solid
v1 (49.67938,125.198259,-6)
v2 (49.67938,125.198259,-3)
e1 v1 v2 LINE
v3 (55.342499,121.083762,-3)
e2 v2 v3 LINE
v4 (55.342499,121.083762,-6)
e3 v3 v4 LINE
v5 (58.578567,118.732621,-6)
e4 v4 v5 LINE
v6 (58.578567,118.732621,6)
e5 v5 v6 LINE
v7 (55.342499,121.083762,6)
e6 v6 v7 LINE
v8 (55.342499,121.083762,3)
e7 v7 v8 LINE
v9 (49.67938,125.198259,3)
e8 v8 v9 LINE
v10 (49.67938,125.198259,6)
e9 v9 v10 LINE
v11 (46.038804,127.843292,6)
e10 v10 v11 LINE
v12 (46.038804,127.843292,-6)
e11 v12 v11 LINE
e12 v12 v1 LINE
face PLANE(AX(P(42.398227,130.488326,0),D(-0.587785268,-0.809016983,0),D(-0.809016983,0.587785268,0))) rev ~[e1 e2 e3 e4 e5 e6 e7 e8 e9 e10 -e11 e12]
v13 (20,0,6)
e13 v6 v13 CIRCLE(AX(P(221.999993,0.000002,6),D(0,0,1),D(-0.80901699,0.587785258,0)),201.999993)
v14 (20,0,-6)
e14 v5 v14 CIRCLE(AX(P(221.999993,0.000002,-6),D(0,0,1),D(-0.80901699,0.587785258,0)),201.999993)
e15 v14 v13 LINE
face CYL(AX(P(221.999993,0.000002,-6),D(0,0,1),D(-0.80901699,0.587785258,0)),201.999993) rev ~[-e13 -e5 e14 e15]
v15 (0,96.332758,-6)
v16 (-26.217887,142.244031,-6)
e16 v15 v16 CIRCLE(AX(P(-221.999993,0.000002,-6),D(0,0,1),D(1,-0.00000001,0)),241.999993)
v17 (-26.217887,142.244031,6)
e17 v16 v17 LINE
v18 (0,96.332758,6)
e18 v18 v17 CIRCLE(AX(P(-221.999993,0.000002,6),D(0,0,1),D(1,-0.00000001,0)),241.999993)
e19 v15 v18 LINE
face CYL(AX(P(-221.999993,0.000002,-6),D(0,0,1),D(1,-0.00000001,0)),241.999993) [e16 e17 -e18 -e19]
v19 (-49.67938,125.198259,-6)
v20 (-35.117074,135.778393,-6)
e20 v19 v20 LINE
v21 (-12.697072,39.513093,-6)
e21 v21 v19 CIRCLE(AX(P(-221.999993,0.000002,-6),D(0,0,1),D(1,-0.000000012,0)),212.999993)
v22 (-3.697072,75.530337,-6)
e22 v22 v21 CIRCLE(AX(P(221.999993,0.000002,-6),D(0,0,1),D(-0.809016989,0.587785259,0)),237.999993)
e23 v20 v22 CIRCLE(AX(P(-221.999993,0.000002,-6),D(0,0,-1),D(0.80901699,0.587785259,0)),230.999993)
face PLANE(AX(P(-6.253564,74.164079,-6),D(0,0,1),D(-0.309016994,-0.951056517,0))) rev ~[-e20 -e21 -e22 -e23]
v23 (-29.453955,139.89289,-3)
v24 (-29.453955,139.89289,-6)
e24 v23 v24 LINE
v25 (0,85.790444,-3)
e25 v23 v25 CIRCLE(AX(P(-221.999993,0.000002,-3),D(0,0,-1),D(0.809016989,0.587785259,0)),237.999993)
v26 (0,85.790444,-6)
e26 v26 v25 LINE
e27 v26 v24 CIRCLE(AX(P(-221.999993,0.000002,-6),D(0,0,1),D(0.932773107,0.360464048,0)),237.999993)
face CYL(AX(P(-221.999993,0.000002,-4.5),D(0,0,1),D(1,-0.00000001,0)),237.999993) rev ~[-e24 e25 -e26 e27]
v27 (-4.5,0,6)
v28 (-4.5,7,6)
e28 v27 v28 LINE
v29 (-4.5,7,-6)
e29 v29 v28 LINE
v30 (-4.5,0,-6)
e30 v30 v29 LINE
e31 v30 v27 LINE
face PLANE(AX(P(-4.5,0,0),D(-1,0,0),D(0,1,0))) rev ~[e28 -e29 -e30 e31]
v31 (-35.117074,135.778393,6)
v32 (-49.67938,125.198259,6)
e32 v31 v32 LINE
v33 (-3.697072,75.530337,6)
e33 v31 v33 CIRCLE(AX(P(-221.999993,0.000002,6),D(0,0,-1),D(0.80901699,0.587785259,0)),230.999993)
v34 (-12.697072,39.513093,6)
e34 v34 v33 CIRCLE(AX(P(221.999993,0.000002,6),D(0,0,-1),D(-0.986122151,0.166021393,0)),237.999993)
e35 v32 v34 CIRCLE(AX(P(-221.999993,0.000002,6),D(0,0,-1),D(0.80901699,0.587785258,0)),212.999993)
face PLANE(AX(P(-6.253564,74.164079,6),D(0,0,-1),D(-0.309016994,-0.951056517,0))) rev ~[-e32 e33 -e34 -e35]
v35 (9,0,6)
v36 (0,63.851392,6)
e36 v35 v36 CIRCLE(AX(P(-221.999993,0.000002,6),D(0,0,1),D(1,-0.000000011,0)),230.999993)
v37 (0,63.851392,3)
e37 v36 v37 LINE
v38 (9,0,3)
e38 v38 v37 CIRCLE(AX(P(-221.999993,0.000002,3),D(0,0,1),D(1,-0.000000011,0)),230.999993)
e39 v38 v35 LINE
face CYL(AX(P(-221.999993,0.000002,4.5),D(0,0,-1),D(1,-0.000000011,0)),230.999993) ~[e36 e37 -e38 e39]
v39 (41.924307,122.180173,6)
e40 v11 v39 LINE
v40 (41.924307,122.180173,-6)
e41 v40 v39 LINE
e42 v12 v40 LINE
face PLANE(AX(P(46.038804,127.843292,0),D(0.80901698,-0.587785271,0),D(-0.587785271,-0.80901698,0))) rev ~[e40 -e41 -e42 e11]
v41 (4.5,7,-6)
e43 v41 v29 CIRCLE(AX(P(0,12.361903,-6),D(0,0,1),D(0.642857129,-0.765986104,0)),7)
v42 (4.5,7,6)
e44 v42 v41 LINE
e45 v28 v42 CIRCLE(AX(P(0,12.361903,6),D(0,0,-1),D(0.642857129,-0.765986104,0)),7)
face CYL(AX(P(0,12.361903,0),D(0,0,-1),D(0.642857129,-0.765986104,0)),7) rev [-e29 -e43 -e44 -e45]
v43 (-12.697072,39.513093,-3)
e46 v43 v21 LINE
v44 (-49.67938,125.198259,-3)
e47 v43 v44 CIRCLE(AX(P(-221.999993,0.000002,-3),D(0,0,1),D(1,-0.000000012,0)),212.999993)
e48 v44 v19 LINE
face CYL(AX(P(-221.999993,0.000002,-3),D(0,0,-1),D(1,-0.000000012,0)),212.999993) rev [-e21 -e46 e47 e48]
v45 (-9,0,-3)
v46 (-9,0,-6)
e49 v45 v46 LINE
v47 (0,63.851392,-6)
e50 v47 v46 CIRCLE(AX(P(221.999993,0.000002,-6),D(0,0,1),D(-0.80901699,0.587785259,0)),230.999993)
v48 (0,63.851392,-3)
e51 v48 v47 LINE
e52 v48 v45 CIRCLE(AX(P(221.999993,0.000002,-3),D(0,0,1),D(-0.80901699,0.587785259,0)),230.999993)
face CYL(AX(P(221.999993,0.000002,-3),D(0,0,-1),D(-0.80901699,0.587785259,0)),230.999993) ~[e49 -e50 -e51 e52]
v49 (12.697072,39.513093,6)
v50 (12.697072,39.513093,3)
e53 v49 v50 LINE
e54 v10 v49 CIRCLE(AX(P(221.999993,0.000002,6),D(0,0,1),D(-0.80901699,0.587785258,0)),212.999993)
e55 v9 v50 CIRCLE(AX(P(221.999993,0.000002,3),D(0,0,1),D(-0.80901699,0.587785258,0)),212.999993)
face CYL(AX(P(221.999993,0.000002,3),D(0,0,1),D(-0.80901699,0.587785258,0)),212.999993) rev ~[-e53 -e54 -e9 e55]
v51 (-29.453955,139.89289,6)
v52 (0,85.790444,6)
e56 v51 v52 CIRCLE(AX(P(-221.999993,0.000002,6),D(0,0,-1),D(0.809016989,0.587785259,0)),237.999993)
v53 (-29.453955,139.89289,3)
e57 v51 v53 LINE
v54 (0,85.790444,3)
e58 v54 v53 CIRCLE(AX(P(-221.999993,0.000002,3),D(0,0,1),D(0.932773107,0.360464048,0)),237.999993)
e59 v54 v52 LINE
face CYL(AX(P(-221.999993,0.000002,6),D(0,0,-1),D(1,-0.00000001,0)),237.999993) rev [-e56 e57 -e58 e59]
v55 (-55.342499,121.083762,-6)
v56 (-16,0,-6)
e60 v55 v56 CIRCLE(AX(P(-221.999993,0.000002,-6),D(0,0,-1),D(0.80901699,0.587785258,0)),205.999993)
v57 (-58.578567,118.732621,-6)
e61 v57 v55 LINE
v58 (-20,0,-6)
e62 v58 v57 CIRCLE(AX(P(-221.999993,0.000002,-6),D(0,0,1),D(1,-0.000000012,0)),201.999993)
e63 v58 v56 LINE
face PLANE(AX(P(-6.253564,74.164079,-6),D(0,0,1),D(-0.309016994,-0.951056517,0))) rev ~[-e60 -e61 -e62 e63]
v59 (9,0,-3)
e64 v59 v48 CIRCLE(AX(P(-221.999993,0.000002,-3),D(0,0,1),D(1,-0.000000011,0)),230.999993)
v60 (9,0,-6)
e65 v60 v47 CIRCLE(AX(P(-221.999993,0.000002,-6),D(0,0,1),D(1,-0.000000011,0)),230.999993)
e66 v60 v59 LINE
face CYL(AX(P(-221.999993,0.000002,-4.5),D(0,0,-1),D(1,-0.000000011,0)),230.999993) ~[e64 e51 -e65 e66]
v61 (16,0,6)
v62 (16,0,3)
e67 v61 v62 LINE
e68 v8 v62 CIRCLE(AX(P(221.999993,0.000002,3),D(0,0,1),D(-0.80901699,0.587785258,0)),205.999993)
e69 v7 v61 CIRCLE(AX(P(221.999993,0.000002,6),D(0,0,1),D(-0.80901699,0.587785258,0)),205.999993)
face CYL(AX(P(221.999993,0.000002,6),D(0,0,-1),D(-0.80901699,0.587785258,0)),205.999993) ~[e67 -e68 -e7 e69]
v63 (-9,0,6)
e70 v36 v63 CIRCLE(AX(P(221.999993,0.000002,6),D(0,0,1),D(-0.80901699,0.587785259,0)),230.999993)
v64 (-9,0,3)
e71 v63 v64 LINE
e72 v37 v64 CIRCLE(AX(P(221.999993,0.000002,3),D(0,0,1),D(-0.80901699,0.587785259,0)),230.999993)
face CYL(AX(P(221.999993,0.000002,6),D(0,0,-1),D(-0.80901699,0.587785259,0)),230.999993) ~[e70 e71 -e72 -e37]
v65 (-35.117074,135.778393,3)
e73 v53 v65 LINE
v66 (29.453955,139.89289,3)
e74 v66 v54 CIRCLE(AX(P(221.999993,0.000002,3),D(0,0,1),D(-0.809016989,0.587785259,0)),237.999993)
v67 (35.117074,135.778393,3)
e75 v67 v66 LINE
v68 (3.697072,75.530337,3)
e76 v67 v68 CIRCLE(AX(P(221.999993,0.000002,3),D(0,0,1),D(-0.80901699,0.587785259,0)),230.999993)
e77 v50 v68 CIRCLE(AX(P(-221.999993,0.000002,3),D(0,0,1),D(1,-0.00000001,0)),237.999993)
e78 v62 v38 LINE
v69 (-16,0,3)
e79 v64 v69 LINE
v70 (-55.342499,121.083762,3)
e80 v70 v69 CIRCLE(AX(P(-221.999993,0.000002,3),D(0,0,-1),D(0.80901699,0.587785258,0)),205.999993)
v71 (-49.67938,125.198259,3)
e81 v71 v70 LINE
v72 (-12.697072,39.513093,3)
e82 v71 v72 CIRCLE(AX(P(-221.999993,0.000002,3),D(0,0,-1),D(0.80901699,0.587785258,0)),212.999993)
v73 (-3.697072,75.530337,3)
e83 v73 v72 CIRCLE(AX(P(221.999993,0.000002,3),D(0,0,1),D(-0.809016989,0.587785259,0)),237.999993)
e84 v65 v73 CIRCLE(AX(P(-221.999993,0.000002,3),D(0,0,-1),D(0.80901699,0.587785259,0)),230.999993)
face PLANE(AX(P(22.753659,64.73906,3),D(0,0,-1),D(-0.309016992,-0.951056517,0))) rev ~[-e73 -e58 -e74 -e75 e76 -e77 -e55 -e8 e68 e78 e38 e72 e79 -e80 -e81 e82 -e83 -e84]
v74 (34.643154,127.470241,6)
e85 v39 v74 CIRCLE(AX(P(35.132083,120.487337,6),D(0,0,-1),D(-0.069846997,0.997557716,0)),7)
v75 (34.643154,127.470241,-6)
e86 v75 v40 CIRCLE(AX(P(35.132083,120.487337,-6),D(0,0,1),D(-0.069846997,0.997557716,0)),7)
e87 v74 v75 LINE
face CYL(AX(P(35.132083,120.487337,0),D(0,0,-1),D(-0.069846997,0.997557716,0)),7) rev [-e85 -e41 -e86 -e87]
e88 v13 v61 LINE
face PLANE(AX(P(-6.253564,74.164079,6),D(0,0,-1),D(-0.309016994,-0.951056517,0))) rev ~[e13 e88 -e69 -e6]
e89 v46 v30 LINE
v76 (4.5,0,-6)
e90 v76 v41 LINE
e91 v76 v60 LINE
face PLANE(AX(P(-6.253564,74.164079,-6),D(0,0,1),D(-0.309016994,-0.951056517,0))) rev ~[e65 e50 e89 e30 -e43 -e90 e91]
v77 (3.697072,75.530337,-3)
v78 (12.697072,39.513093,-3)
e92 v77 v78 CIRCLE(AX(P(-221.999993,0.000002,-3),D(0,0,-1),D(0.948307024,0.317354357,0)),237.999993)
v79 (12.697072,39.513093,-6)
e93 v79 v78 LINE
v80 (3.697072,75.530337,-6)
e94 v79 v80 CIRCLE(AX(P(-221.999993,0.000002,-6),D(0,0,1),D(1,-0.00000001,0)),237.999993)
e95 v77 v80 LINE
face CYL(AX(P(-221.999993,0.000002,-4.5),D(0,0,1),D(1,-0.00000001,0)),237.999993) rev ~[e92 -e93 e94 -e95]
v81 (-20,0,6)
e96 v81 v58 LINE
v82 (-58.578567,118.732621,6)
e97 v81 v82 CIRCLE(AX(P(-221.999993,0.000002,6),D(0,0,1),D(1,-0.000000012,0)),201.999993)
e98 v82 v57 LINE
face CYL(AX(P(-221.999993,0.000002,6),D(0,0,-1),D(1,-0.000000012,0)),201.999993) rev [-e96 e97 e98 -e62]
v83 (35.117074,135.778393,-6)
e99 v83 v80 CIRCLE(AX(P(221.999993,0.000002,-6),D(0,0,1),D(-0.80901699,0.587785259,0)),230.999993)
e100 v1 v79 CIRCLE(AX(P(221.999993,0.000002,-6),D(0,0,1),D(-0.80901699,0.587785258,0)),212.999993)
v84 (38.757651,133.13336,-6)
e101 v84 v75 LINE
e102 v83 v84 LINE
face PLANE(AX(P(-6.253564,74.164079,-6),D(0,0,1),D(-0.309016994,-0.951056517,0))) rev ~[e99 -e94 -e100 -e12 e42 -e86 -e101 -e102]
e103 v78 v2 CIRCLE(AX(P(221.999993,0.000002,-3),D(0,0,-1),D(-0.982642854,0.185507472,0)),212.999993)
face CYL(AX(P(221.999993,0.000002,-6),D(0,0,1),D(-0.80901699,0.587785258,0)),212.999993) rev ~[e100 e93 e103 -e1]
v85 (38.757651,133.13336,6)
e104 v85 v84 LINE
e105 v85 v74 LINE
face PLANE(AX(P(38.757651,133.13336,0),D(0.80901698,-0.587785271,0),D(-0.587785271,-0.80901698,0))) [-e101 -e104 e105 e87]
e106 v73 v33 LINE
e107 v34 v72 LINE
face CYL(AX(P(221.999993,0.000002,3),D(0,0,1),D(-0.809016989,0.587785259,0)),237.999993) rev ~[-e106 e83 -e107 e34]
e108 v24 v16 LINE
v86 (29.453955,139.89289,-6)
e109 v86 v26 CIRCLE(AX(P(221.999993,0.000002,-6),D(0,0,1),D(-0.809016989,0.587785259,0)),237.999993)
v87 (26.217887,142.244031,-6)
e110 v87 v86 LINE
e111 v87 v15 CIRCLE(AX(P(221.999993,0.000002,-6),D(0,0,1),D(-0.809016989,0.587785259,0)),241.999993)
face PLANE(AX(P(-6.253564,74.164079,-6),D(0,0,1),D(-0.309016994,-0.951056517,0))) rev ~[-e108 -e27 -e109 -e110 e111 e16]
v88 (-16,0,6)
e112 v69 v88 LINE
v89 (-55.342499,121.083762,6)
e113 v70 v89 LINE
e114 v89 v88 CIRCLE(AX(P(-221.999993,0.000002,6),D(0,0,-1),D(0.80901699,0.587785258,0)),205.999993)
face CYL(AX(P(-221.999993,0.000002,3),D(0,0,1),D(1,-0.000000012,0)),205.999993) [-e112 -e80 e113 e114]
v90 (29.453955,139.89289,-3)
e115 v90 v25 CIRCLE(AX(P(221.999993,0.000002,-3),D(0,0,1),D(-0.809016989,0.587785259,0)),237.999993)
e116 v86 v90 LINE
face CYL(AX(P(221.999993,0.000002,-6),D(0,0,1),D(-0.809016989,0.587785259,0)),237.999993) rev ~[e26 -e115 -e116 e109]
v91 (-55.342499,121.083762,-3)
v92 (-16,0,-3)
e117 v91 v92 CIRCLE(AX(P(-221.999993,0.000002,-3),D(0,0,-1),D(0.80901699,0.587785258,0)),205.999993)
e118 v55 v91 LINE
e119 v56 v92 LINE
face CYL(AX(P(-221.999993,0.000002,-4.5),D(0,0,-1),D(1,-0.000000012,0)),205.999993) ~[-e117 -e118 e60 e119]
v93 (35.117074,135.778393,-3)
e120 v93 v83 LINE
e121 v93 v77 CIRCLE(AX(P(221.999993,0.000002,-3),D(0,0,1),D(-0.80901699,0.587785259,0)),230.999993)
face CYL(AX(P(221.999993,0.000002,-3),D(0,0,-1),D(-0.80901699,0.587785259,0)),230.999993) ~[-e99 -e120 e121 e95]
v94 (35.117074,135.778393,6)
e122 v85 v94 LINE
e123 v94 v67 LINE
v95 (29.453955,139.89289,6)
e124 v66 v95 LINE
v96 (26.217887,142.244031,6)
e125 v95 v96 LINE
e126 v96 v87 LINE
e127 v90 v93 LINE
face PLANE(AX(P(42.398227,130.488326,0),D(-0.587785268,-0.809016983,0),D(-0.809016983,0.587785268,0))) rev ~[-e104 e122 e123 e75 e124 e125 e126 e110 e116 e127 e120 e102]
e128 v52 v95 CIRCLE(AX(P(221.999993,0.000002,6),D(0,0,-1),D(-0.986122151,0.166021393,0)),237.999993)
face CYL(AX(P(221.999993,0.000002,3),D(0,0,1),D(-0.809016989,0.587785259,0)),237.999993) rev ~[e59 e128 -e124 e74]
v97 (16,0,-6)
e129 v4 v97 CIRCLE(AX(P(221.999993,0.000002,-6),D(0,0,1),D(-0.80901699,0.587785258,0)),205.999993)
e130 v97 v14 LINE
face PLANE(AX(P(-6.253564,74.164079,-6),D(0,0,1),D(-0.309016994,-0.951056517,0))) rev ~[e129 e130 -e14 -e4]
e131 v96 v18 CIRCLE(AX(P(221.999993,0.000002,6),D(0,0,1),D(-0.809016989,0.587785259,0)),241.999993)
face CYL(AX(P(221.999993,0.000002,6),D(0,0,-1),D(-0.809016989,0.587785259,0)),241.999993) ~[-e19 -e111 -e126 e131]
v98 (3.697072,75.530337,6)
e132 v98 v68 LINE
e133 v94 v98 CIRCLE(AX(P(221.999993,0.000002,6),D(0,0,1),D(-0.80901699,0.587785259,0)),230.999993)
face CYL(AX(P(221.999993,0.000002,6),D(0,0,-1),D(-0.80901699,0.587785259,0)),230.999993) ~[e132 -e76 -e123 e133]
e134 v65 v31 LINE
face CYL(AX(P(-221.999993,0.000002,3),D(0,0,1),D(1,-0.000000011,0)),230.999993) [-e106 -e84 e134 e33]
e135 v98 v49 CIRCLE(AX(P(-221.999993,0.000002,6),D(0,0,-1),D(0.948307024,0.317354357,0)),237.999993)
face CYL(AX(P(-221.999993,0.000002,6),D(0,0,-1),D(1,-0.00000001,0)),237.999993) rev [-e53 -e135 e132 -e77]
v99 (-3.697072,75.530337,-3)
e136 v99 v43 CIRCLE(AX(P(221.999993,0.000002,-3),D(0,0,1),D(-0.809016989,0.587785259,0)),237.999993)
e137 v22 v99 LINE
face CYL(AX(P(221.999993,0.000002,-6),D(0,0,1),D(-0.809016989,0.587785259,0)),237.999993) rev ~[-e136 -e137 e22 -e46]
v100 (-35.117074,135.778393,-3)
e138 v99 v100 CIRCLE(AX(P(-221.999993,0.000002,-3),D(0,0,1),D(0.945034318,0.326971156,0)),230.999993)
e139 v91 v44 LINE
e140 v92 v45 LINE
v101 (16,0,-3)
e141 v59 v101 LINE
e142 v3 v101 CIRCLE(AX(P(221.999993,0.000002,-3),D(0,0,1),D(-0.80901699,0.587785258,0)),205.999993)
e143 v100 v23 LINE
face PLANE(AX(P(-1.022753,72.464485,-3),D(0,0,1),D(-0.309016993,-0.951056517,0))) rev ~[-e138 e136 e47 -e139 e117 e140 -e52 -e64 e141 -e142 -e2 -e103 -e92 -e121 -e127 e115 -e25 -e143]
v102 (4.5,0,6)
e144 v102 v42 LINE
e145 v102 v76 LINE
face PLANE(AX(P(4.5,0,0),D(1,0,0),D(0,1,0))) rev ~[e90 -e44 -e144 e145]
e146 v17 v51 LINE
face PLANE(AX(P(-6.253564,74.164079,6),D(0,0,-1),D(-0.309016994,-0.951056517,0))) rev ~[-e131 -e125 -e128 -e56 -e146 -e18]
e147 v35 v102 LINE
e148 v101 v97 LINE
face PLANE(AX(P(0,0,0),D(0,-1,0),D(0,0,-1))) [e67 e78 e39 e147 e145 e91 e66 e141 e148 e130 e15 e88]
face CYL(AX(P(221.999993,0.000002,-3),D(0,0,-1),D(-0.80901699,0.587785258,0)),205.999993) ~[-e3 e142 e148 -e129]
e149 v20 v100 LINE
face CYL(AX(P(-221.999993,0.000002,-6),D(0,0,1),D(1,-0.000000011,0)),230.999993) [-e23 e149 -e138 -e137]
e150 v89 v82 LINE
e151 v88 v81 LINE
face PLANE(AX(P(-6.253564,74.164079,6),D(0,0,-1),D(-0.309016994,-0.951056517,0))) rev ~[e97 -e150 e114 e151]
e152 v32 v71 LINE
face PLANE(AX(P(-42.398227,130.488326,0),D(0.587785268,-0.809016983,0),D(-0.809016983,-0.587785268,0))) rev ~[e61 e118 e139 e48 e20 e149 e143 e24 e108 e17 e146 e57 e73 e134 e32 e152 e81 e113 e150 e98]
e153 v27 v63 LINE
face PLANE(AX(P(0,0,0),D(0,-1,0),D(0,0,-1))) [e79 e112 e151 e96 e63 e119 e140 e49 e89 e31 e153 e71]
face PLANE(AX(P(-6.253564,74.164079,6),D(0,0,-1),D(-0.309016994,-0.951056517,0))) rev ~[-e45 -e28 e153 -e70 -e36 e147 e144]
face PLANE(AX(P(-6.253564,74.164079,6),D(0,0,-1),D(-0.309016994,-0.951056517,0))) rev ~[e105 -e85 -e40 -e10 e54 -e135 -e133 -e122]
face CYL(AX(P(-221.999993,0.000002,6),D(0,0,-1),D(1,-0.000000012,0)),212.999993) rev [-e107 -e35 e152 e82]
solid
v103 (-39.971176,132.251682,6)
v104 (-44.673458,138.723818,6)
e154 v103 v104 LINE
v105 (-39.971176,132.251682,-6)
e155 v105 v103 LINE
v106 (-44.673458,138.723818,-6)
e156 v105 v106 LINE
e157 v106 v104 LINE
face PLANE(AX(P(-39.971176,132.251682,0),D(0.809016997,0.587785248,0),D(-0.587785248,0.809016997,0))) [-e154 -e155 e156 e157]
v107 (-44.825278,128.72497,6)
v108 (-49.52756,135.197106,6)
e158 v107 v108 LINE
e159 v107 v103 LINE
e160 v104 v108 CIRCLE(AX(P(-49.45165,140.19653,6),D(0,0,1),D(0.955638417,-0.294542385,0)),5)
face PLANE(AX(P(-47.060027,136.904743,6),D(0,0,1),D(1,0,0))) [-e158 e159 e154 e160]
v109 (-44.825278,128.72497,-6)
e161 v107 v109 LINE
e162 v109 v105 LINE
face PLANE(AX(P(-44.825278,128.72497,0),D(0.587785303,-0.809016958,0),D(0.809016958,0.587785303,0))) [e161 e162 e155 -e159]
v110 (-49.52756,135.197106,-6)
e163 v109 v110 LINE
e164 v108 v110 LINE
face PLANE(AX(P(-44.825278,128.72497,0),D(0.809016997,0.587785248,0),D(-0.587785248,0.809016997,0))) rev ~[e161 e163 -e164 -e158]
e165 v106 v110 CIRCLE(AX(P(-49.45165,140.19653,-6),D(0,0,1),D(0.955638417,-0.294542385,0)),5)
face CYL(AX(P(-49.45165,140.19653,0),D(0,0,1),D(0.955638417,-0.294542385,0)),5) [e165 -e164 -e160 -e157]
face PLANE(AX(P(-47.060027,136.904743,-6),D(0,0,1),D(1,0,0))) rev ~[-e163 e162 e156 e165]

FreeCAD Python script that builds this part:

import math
import FreeCAD as App
import Part
import Sketcher
Q = App.Units.Quantity


def add_polygon(sketch, points):
    """Adds a closed chain of lines whose ends are joined by coincident constraints."""
    first, n = sketch.GeometryCount, len(points)
    for a, b in zip(points, points[1:] + points[:1]):
        sketch.addGeometry(Part.LineSegment(App.Vector(*a, 0), App.Vector(*b, 0)), False)
    for i in range(n):
        sketch.addConstraint(Sketcher.Constraint("Coincident", first + i, 2, first + (i + 1) % n, 1))

doc = App.newDocument("Part")
body = doc.addObject("PartDesign::Body", "Body")

sketch1 = doc.addObject("Sketcher::SketchObject", "Sketch")
body.addObject(sketch1)
sketch1.AttachmentSupport = (doc.XZ_Plane, [""])
sketch1.MapMode = "FlatFace"
add_polygon(sketch1, [(-20, 6), (-20, -6), (-16, -6), (-16, -3), (-9, -3), (-9, -6), (9, -6), (9, -3), (16, -3), (16, -6), (20, -6), (20, 6), (16, 6), (16, 3), (9, 3), (9, 6), (-9, 6), (-9, 3), (-16, 3), (-16, 6)])
sketch1.addConstraint([
    Sketcher.Constraint("Vertical", 0),
    Sketcher.Constraint("Horizontal", 1),
    Sketcher.Constraint("Vertical", 2),
    Sketcher.Constraint("Horizontal", 3),
    Sketcher.Constraint("Vertical", 4),
    Sketcher.Constraint("Horizontal", 5),
    Sketcher.Constraint("Vertical", 6),
    Sketcher.Constraint("Horizontal", 7),
    Sketcher.Constraint("Vertical", 8),
    Sketcher.Constraint("Horizontal", 9),
    Sketcher.Constraint("Vertical", 10),
    Sketcher.Constraint("Horizontal", 11),
    Sketcher.Constraint("Vertical", 12),
    Sketcher.Constraint("Horizontal", 13),
    Sketcher.Constraint("Vertical", 14),
    Sketcher.Constraint("Horizontal", 15),
    Sketcher.Constraint("Vertical", 16),
    Sketcher.Constraint("Horizontal", 17),
    Sketcher.Constraint("Vertical", 18),
    Sketcher.Constraint("Horizontal", 19),
    Sketcher.Constraint("Symmetric", 0, 2, 10, 2, -1, 1),
    Sketcher.Constraint("Symmetric", 2, 2, 12, 2, -1, 1),
    Sketcher.Constraint("Symmetric", 4, 2, 14, 2, -1, 1),
    Sketcher.Constraint("Symmetric", 6, 2, 16, 2, -1, 1),
    Sketcher.Constraint("Symmetric", 8, 2, 18, 2, -1, 1),
    Sketcher.Constraint("Symmetric", 3, 2, 6, 2, -2),
    Sketcher.Constraint("Symmetric", 1, 2, 8, 2, -2),
    Sketcher.Constraint("Horizontal", 1, 2, 4, 2),
    Sketcher.Constraint("DistanceX", 1, 1, 1, 2, 4.0),
    Sketcher.Constraint("DistanceX", 3, 1, 3, 2, 7.0),
    Sketcher.Constraint("DistanceX", 5, 1, 5, 2, 18.0),
    Sketcher.Constraint("DistanceY", 0, 2, 0, 1, 12.0),
    Sketcher.Constraint("DistanceY", 2, 1, 2, 2, 3.0),
])

sketch2 = doc.addObject("Sketcher::SketchObject", "Sketch001")
body.addObject(sketch2)
sketch2.AttachmentSupport = (doc.XY_Plane, [""])
sketch2.MapMode = "FlatFace"
sketch2.addGeometry(Part.ArcOfCircle(Part.Circle(App.Vector(-221.999993, 0.000002, 0), App.Vector(0, 0, 1), 221.999993), math.radians(-0.000001), math.radians(36)), False)
sketch2.addConstraint([
    Sketcher.Constraint("Coincident", 0, 1, -1, 1),
    Sketcher.Constraint("Radius", 0, 221.999993),
    Sketcher.Constraint("DistanceX", 0, 2, -1, 1, 42.398227),
    Sketcher.Constraint("DistanceY", -1, 1, 0, 2, 130.488326),
])
doc.recompute()

additivepipe = doc.addObject("PartDesign::AdditivePipe", "AdditivePipe")
body.addObject(additivepipe)
additivepipe.Profile = sketch1
additivepipe.Spine = (sketch2, ["Edge1"])

sketch3 = doc.addObject("Sketcher::SketchObject", "Sketch002")
body.addObject(sketch3)
sketch3.AttachmentSupport = (doc.XZ_Plane, [""])
sketch3.MapMode = "FlatFace"
add_polygon(sketch3, [(-20, 6), (-20, -6), (-16, -6), (-16, -3), (-9, -3), (-9, -6), (9, -6), (9, -3), (16, -3), (16, -6), (20, -6), (20, 6), (16, 6), (16, 3), (9, 3), (9, 6), (-9, 6), (-9, 3), (-16, 3), (-16, 6)])
sketch3.addConstraint([
    Sketcher.Constraint("Vertical", 0),
    Sketcher.Constraint("Horizontal", 1),
    Sketcher.Constraint("Vertical", 2),
    Sketcher.Constraint("Horizontal", 3),
    Sketcher.Constraint("Vertical", 4),
    Sketcher.Constraint("Horizontal", 5),
    Sketcher.Constraint("Vertical", 6),
    Sketcher.Constraint("Horizontal", 7),
    Sketcher.Constraint("Vertical", 8),
    Sketcher.Constraint("Horizontal", 9),
    Sketcher.Constraint("Vertical", 10),
    Sketcher.Constraint("Horizontal", 11),
    Sketcher.Constraint("Vertical", 12),
    Sketcher.Constraint("Horizontal", 13),
    Sketcher.Constraint("Vertical", 14),
    Sketcher.Constraint("Horizontal", 15),
    Sketcher.Constraint("Vertical", 16),
    Sketcher.Constraint("Horizontal", 17),
    Sketcher.Constraint("Vertical", 18),
    Sketcher.Constraint("Horizontal", 19),
    Sketcher.Constraint("Symmetric", 0, 2, 10, 2, -1, 1),
    Sketcher.Constraint("Symmetric", 2, 2, 12, 2, -1, 1),
    Sketcher.Constraint("Symmetric", 4, 2, 14, 2, -1, 1),
    Sketcher.Constraint("Symmetric", 6, 2, 16, 2, -1, 1),
    Sketcher.Constraint("Symmetric", 8, 2, 18, 2, -1, 1),
    Sketcher.Constraint("Symmetric", 3, 2, 6, 2, -2),
    Sketcher.Constraint("Symmetric", 1, 2, 8, 2, -2),
    Sketcher.Constraint("Horizontal", 1, 2, 4, 2),
    Sketcher.Constraint("DistanceX", 1, 1, 1, 2, 4.0),
    Sketcher.Constraint("DistanceX", 3, 1, 3, 2, 7.0),
    Sketcher.Constraint("DistanceX", 5, 1, 5, 2, 18.0),
    Sketcher.Constraint("DistanceY", 0, 2, 0, 1, 12.0),
    Sketcher.Constraint("DistanceY", 2, 1, 2, 2, 3.0),
])

sketch4 = doc.addObject("Sketcher::SketchObject", "Sketch003")
body.addObject(sketch4)
sketch4.AttachmentSupport = (doc.XY_Plane, [""])
sketch4.MapMode = "FlatFace"
sketch4.addGeometry(Part.ArcOfCircle(Part.Circle(App.Vector(221.999993, 0.000002, 0), App.Vector(0, 0, 1), 221.999993), math.radians(144), math.radians(180.000001)), False)
sketch4.addConstraint([
    Sketcher.Constraint("Coincident", 0, 2, -1, 1),
    Sketcher.Constraint("Radius", 0, 221.999993),
    Sketcher.Constraint("DistanceX", -1, 1, 0, 1, 42.398227),
    Sketcher.Constraint("DistanceY", -1, 1, 0, 1, 130.488326),
])
doc.recompute()

additivepipe2 = doc.addObject("PartDesign::AdditivePipe", "AdditivePipe001")
body.addObject(additivepipe2)
additivepipe2.Profile = sketch3
additivepipe2.Spine = (sketch4, ["Edge1"])

sketch5 = doc.addObject("Sketcher::SketchObject", "Sketch004")
body.addObject(sketch5)
sketch5.AttachmentSupport = (doc.XZ_Plane, [""])
sketch5.MapMode = "FlatFace"
add_polygon(sketch5, [(-16, 6), (-16, 3), (-9, 3), (-9, 6)])
sketch5.addConstraint([
    Sketcher.Constraint("Vertical", 0),
    Sketcher.Constraint("Horizontal", 1),
    Sketcher.Constraint("Vertical", 2),
    Sketcher.Constraint("Horizontal", 3),
    Sketcher.Constraint("DistanceX", 1, 1, 1, 2, 7.0),
    Sketcher.Constraint("DistanceY", 0, 2, 0, 1, 3.0),
    Sketcher.Constraint("DistanceX", 0, 2, -1, 1, 16.0),
    Sketcher.Constraint("DistanceY", -1, 1, 0, 2, 3.0),
])

sketch6 = doc.addObject("Sketcher::SketchObject", "Sketch005")
body.addObject(sketch6)
sketch6.AttachmentSupport = (doc.XY_Plane, [""])
sketch6.MapMode = "FlatFace"
sketch6.addGeometry(Part.ArcOfCircle(Part.Circle(App.Vector(-221.999993, 0.000002, 0), App.Vector(0, 0, 1), 221.999993), math.radians(-0.000001), math.radians(36)), False)
sketch6.addConstraint([
    Sketcher.Constraint("Coincident", 0, 1, -1, 1),
    Sketcher.Constraint("Radius", 0, 221.999993),
    Sketcher.Constraint("DistanceX", 0, 2, -1, 1, 42.398227),
    Sketcher.Constraint("DistanceY", -1, 1, 0, 2, 130.488326),
])
doc.recompute()

subtractivepipe = doc.addObject("PartDesign::SubtractivePipe", "SubtractivePipe")
body.addObject(subtractivepipe)
subtractivepipe.Profile = sketch5
subtractivepipe.Spine = (sketch6, ["Edge1"])

sketch7 = doc.addObject("Sketcher::SketchObject", "Sketch006")
body.addObject(sketch7)
sketch7.AttachmentSupport = (doc.XZ_Plane, [""])
sketch7.MapMode = "FlatFace"
add_polygon(sketch7, [(-16, 6), (-16, 3), (-9, 3), (-9, 6)])
sketch7.addConstraint([
    Sketcher.Constraint("Vertical", 0),
    Sketcher.Constraint("Horizontal", 1),
    Sketcher.Constraint("Vertical", 2),
    Sketcher.Constraint("Horizontal", 3),
    Sketcher.Constraint("DistanceX", 1, 1, 1, 2, 7.0),
    Sketcher.Constraint("DistanceY", 0, 2, 0, 1, 3.0),
    Sketcher.Constraint("DistanceX", 0, 2, -1, 1, 16.0),
    Sketcher.Constraint("DistanceY", -1, 1, 0, 2, 3.0),
])

sketch8 = doc.addObject("Sketcher::SketchObject", "Sketch007")
body.addObject(sketch8)
sketch8.AttachmentSupport = (doc.XY_Plane, [""])
sketch8.MapMode = "FlatFace"
sketch8.addGeometry(Part.ArcOfCircle(Part.Circle(App.Vector(221.999993, 0.000002, 0), App.Vector(0, 0, 1), 221.999993), math.radians(144), math.radians(180.000001)), False)
sketch8.addConstraint([
    Sketcher.Constraint("Coincident", 0, 2, -1, 1),
    Sketcher.Constraint("Radius", 0, 221.999993),
    Sketcher.Constraint("DistanceX", -1, 1, 0, 1, 42.398227),
    Sketcher.Constraint("DistanceY", -1, 1, 0, 1, 130.488326),
])
doc.recompute()

subtractivepipe2 = doc.addObject("PartDesign::SubtractivePipe", "SubtractivePipe001")
body.addObject(subtractivepipe2)
subtractivepipe2.Profile = sketch7
subtractivepipe2.Spine = (sketch8, ["Edge1"])

sketch9 = doc.addObject("Sketcher::SketchObject", "Sketch008")
body.addObject(sketch9)
sketch9.AttachmentSupport = (doc.XZ_Plane, [""])
sketch9.MapMode = "FlatFace"
add_polygon(sketch9, [(9, 6), (9, 3), (16, 3), (16, 6)])
sketch9.addConstraint([
    Sketcher.Constraint("Vertical", 0),
    Sketcher.Constraint("Horizontal", 1),
    Sketcher.Constraint("Vertical", 2),
    Sketcher.Constraint("Horizontal", 3),
    Sketcher.Constraint("DistanceX", 1, 1, 1, 2, 7.0),
    Sketcher.Constraint("DistanceY", 0, 2, 0, 1, 3.0),
    Sketcher.Constraint("DistanceX", -1, 1, 0, 2, 9.0),
    Sketcher.Constraint("DistanceY", -1, 1, 0, 2, 3.0),
])

sketch10 = doc.addObject("Sketcher::SketchObject", "Sketch009")
body.addObject(sketch10)
sketch10.AttachmentSupport = (doc.XY_Plane, [""])
sketch10.MapMode = "FlatFace"
sketch10.addGeometry(Part.ArcOfCircle(Part.Circle(App.Vector(-221.999993, 0.000002, 0), App.Vector(0, 0, 1), 221.999993), math.radians(-0.000001), math.radians(36)), False)
sketch10.addConstraint([
    Sketcher.Constraint("Coincident", 0, 1, -1, 1),
    Sketcher.Constraint("Radius", 0, 221.999993),
    Sketcher.Constraint("DistanceX", 0, 2, -1, 1, 42.398227),
    Sketcher.Constraint("DistanceY", -1, 1, 0, 2, 130.488326),
])
doc.recompute()

subtractivepipe3 = doc.addObject("PartDesign::SubtractivePipe", "SubtractivePipe002")
body.addObject(subtractivepipe3)
subtractivepipe3.Profile = sketch9
subtractivepipe3.Spine = (sketch10, ["Edge1"])

sketch11 = doc.addObject("Sketcher::SketchObject", "Sketch010")
body.addObject(sketch11)
sketch11.AttachmentSupport = (doc.XZ_Plane, [""])
sketch11.MapMode = "FlatFace"
add_polygon(sketch11, [(9, 6), (9, 3), (16, 3), (16, 6)])
sketch11.addConstraint([
    Sketcher.Constraint("Vertical", 0),
    Sketcher.Constraint("Horizontal", 1),
    Sketcher.Constraint("Vertical", 2),
    Sketcher.Constraint("Horizontal", 3),
    Sketcher.Constraint("DistanceX", 1, 1, 1, 2, 7.0),
    Sketcher.Constraint("DistanceY", 0, 2, 0, 1, 3.0),
    Sketcher.Constraint("DistanceX", -1, 1, 0, 2, 9.0),
    Sketcher.Constraint("DistanceY", -1, 1, 0, 2, 3.0),
])

sketch12 = doc.addObject("Sketcher::SketchObject", "Sketch011")
body.addObject(sketch12)
sketch12.AttachmentSupport = (doc.XY_Plane, [""])
sketch12.MapMode = "FlatFace"
sketch12.addGeometry(Part.ArcOfCircle(Part.Circle(App.Vector(221.999993, 0.000002, 0), App.Vector(0, 0, 1), 221.999993), math.radians(144), math.radians(180.000001)), False)
sketch12.addConstraint([
    Sketcher.Constraint("Coincident", 0, 2, -1, 1),
    Sketcher.Constraint("Radius", 0, 221.999993),
    Sketcher.Constraint("DistanceX", -1, 1, 0, 1, 42.398227),
    Sketcher.Constraint("DistanceY", -1, 1, 0, 1, 130.488326),
])
doc.recompute()

subtractivepipe4 = doc.addObject("PartDesign::SubtractivePipe", "SubtractivePipe003")
body.addObject(subtractivepipe4)
subtractivepipe4.Profile = sketch11
subtractivepipe4.Spine = (sketch12, ["Edge1"])

sketch13 = doc.addObject("Sketcher::SketchObject", "Sketch012")
body.addObject(sketch13)
sketch13.AttachmentSupport = (doc.XZ_Plane, [""])
sketch13.MapMode = "FlatFace"
add_polygon(sketch13, [(-16, -3), (-16, -6), (-9, -6), (-9, -3)])
sketch13.addConstraint([
    Sketcher.Constraint("Vertical", 0),
    Sketcher.Constraint("Horizontal", 1),
    Sketcher.Constraint("Vertical", 2),
    Sketcher.Constraint("Horizontal", 3),
    Sketcher.Constraint("DistanceX", 1, 1, 1, 2, 7.0),
    Sketcher.Constraint("DistanceY", 0, 2, 0, 1, 3.0),
    Sketcher.Constraint("DistanceX", 0, 2, -1, 1, 16.0),
    Sketcher.Constraint("DistanceY", 0, 2, -1, 1, 6.0),
])

sketch14 = doc.addObject("Sketcher::SketchObject", "Sketch013")
body.addObject(sketch14)
sketch14.AttachmentSupport = (doc.XY_Plane, [""])
sketch14.MapMode = "FlatFace"
sketch14.addGeometry(Part.ArcOfCircle(Part.Circle(App.Vector(-221.999993, 0.000002, 0), App.Vector(0, 0, 1), 221.999993), math.radians(-0.000001), math.radians(36)), False)
sketch14.addConstraint([
    Sketcher.Constraint("Coincident", 0, 1, -1, 1),
    Sketcher.Constraint("Radius", 0, 221.999993),
    Sketcher.Constraint("DistanceX", 0, 2, -1, 1, 42.398227),
    Sketcher.Constraint("DistanceY", -1, 1, 0, 2, 130.488326),
])
doc.recompute()

subtractivepipe5 = doc.addObject("PartDesign::SubtractivePipe", "SubtractivePipe004")
body.addObject(subtractivepipe5)
subtractivepipe5.Profile = sketch13
subtractivepipe5.Spine = (sketch14, ["Edge1"])

sketch15 = doc.addObject("Sketcher::SketchObject", "Sketch014")
body.addObject(sketch15)
sketch15.AttachmentSupport = (doc.XZ_Plane, [""])
sketch15.MapMode = "FlatFace"
add_polygon(sketch15, [(-16, -3), (-16, -6), (-9, -6), (-9, -3)])
sketch15.addConstraint([
    Sketcher.Constraint("Vertical", 0),
    Sketcher.Constraint("Horizontal", 1),
    Sketcher.Constraint("Vertical", 2),
    Sketcher.Constraint("Horizontal", 3),
    Sketcher.Constraint("DistanceX", 1, 1, 1, 2, 7.0),
    Sketcher.Constraint("DistanceY", 0, 2, 0, 1, 3.0),
    Sketcher.Constraint("DistanceX", 0, 2, -1, 1, 16.0),
    Sketcher.Constraint("DistanceY", 0, 2, -1, 1, 6.0),
])

sketch16 = doc.addObject("Sketcher::SketchObject", "Sketch015")
body.addObject(sketch16)
sketch16.AttachmentSupport = (doc.XY_Plane, [""])
sketch16.MapMode = "FlatFace"
sketch16.addGeometry(Part.ArcOfCircle(Part.Circle(App.Vector(221.999993, 0.000002, 0), App.Vector(0, 0, 1), 221.999993), math.radians(144), math.radians(180.000001)), False)
sketch16.addConstraint([
    Sketcher.Constraint("Coincident", 0, 2, -1, 1),
    Sketcher.Constraint("Radius", 0, 221.999993),
    Sketcher.Constraint("DistanceX", -1, 1, 0, 1, 42.398227),
    Sketcher.Constraint("DistanceY", -1, 1, 0, 1, 130.488326),
])
doc.recompute()

subtractivepipe6 = doc.addObject("PartDesign::SubtractivePipe", "SubtractivePipe005")
body.addObject(subtractivepipe6)
subtractivepipe6.Profile = sketch15
subtractivepipe6.Spine = (sketch16, ["Edge1"])

sketch17 = doc.addObject("Sketcher::SketchObject", "Sketch016")
body.addObject(sketch17)
sketch17.AttachmentSupport = (doc.XZ_Plane, [""])
sketch17.MapMode = "FlatFace"
add_polygon(sketch17, [(9, -3), (9, -6), (16, -6), (16, -3)])
sketch17.addConstraint([
    Sketcher.Constraint("Vertical", 0),
    Sketcher.Constraint("Horizontal", 1),
    Sketcher.Constraint("Vertical", 2),
    Sketcher.Constraint("Horizontal", 3),
    Sketcher.Constraint("DistanceX", 1, 1, 1, 2, 7.0),
    Sketcher.Constraint("DistanceY", 0, 2, 0, 1, 3.0),
    Sketcher.Constraint("DistanceX", -1, 1, 0, 2, 9.0),
    Sketcher.Constraint("DistanceY", 0, 2, -1, 1, 6.0),
])

sketch18 = doc.addObject("Sketcher::SketchObject", "Sketch017")
body.addObject(sketch18)
sketch18.AttachmentSupport = (doc.XY_Plane, [""])
sketch18.MapMode = "FlatFace"
sketch18.addGeometry(Part.ArcOfCircle(Part.Circle(App.Vector(-221.999993, 0.000002, 0), App.Vector(0, 0, 1), 221.999993), math.radians(-0.000001), math.radians(36)), False)
sketch18.addConstraint([
    Sketcher.Constraint("Coincident", 0, 1, -1, 1),
    Sketcher.Constraint("Radius", 0, 221.999993),
    Sketcher.Constraint("DistanceX", 0, 2, -1, 1, 42.398227),
    Sketcher.Constraint("DistanceY", -1, 1, 0, 2, 130.488326),
])
doc.recompute()

subtractivepipe7 = doc.addObject("PartDesign::SubtractivePipe", "SubtractivePipe006")
body.addObject(subtractivepipe7)
subtractivepipe7.Profile = sketch17
subtractivepipe7.Spine = (sketch18, ["Edge1"])

sketch19 = doc.addObject("Sketcher::SketchObject", "Sketch018")
body.addObject(sketch19)
sketch19.AttachmentSupport = (doc.XZ_Plane, [""])
sketch19.MapMode = "FlatFace"
add_polygon(sketch19, [(9, -3), (9, -6), (16, -6), (16, -3)])
sketch19.addConstraint([
    Sketcher.Constraint("Vertical", 0),
    Sketcher.Constraint("Horizontal", 1),
    Sketcher.Constraint("Vertical", 2),
    Sketcher.Constraint("Horizontal", 3),
    Sketcher.Constraint("DistanceX", 1, 1, 1, 2, 7.0),
    Sketcher.Constraint("DistanceY", 0, 2, 0, 1, 3.0),
    Sketcher.Constraint("DistanceX", -1, 1, 0, 2, 9.0),
    Sketcher.Constraint("DistanceY", 0, 2, -1, 1, 6.0),
])

sketch20 = doc.addObject("Sketcher::SketchObject", "Sketch019")
body.addObject(sketch20)
sketch20.AttachmentSupport = (doc.XY_Plane, [""])
sketch20.MapMode = "FlatFace"
sketch20.addGeometry(Part.ArcOfCircle(Part.Circle(App.Vector(221.999993, 0.000002, 0), App.Vector(0, 0, 1), 221.999993), math.radians(144), math.radians(180.000001)), False)
sketch20.addConstraint([
    Sketcher.Constraint("Coincident", 0, 2, -1, 1),
    Sketcher.Constraint("Radius", 0, 221.999993),
    Sketcher.Constraint("DistanceX", -1, 1, 0, 1, 42.398227),
    Sketcher.Constraint("DistanceY", -1, 1, 0, 1, 130.488326),
])
doc.recompute()

subtractivepipe8 = doc.addObject("PartDesign::SubtractivePipe", "SubtractivePipe007")
body.addObject(subtractivepipe8)
subtractivepipe8.Profile = sketch19
subtractivepipe8.Spine = (sketch20, ["Edge1"])

sketch21 = doc.addObject("Sketcher::SketchObject", "Sketch020")
body.addObject(sketch21)
sketch21.AttachmentSupport = (doc.XY_Plane, [""])
sketch21.MapMode = "FlatFace"
sketch21.addGeometry([
    Part.LineSegment(App.Vector(-4.5, 0, 0), App.Vector(4.5, 0, 0)),
    Part.LineSegment(App.Vector(4.5, 0, 0), App.Vector(4.5, 7, 0)),
    Part.ArcOfCircle(Part.Circle(App.Vector(0, 12.361903, 0), App.Vector(0, 0, 1), 7), math.radians(-49.9948), math.radians(229.9948)),
    Part.LineSegment(App.Vector(-4.5, 7, 0), App.Vector(-4.5, 0, 0)),
], False)
sketch21.addConstraint([
    Sketcher.Constraint("Coincident", 0, 2, 1, 1),
    Sketcher.Constraint("Coincident", 1, 2, 2, 1),
    Sketcher.Constraint("Coincident", 2, 2, 3, 1),
    Sketcher.Constraint("Coincident", 3, 2, 0, 1),
    Sketcher.Constraint("Horizontal", 0),
    Sketcher.Constraint("Vertical", 1),
    Sketcher.Constraint("Vertical", 3),
    Sketcher.Constraint("Symmetric", 0, 2, 3, 2, -1, 1),
    Sketcher.Constraint("PointOnObject", 2, 3, -2),
    Sketcher.Constraint("Radius", 2, 7.0),
    Sketcher.Constraint("DistanceX", 0, 1, 0, 2, 9.0),
    Sketcher.Constraint("DistanceY", 1, 1, 1, 2, 7.0),
])
pocket1 = doc.addObject("PartDesign::Pocket", "Pocket")
body.addObject(pocket1)
pocket1.Profile = sketch21
pocket1.Type = "ThroughAll"
pocket1.Midplane = True

sketch22 = doc.addObject("Sketcher::SketchObject", "Sketch021")
body.addObject(sketch22)
sketch22.AttachmentSupport = (doc.XY_Plane, [""])
sketch22.MapMode = "FlatFace"
sketch22.addGeometry([
    Part.LineSegment(App.Vector(46.038804, 127.843292, 0), App.Vector(38.757651, 133.13336, 0)),
    Part.LineSegment(App.Vector(38.757651, 133.13336, 0), App.Vector(34.643154, 127.470241, 0)),
    Part.ArcOfCircle(Part.Circle(App.Vector(35.132083, 120.487337, 0), App.Vector(0, 0, 1), 7), math.radians(94.005199), math.radians(373.994794)),
    Part.LineSegment(App.Vector(41.924307, 122.180173, 0), App.Vector(46.038804, 127.843292, 0)),
], False)
sketch22.addConstraint([
    Sketcher.Constraint("Coincident", 0, 2, 1, 1),
    Sketcher.Constraint("Coincident", 1, 2, 2, 1),
    Sketcher.Constraint("Coincident", 2, 2, 3, 1),
    Sketcher.Constraint("Coincident", 3, 2, 0, 1),
    Sketcher.Constraint("Perpendicular", 0, 1),
    Sketcher.Constraint("Parallel", 1, 3),
    Sketcher.Constraint("Equal", 1, 3),
    Sketcher.Constraint("Radius", 2, 7.0),
    Sketcher.Constraint("Angle", 0, Q("143.999996 deg")),
    Sketcher.Constraint("Distance", 0, 9.0),
    Sketcher.Constraint("Distance", 1, 7.0),
    Sketcher.Constraint("DistanceX", -1, 1, 0, 2, 38.757651),
    Sketcher.Constraint("DistanceY", -1, 1, 0, 2, 133.13336),
])
pocket2 = doc.addObject("PartDesign::Pocket", "Pocket001")
body.addObject(pocket2)
pocket2.Profile = sketch22
pocket2.Type = "ThroughAll"
pocket2.Midplane = True
body2 = doc.addObject("PartDesign::Body", "Body001")

sketch23 = doc.addObject("Sketcher::SketchObject", "Sketch022")
body2.addObject(sketch23)
sketch23.AttachmentSupport = (doc.getObject("XY_Plane001"), [""])
sketch23.MapMode = "FlatFace"
sketch23.addGeometry([
    Part.LineSegment(App.Vector(-44.825278, 128.72497, 0), App.Vector(-39.971176, 132.251682, 0)),
    Part.LineSegment(App.Vector(-39.971176, 132.251682, 0), App.Vector(-44.673458, 138.723818, 0)),
    Part.ArcOfCircle(Part.Circle(App.Vector(-49.45165, 140.19653, 0), App.Vector(0, 0, 1), 5), math.radians(-17.130099), math.radians(269.130106)),
    Part.LineSegment(App.Vector(-49.52756, 135.197106, 0), App.Vector(-44.825278, 128.72497, 0)),
], False)
sketch23.addConstraint([
    Sketcher.Constraint("Coincident", 0, 2, 1, 1),
    Sketcher.Constraint("Coincident", 1, 2, 2, 1),
    Sketcher.Constraint("Coincident", 2, 2, 3, 1),
    Sketcher.Constraint("Coincident", 3, 2, 0, 1),
    Sketcher.Constraint("Perpendicular", 0, 1),
    Sketcher.Constraint("Parallel", 1, 3),
    Sketcher.Constraint("Equal", 1, 3),
    Sketcher.Constraint("Radius", 2, 5.0),
    Sketcher.Constraint("Angle", 0, Q("36.000004 deg")),
    Sketcher.Constraint("Distance", 0, 6.0),
    Sketcher.Constraint("Distance", 1, 8.0),
    Sketcher.Constraint("DistanceX", 2, 3, -1, 1, 49.45165),
    Sketcher.Constraint("DistanceY", -1, 1, 2, 3, 140.19653),
])
pad1 = doc.addObject("PartDesign::Pad", "Pad")
body2.addObject(pad1)
pad1.Profile = sketch23
pad1.Length = 12
pad1.Midplane = True

doc.recompute()
